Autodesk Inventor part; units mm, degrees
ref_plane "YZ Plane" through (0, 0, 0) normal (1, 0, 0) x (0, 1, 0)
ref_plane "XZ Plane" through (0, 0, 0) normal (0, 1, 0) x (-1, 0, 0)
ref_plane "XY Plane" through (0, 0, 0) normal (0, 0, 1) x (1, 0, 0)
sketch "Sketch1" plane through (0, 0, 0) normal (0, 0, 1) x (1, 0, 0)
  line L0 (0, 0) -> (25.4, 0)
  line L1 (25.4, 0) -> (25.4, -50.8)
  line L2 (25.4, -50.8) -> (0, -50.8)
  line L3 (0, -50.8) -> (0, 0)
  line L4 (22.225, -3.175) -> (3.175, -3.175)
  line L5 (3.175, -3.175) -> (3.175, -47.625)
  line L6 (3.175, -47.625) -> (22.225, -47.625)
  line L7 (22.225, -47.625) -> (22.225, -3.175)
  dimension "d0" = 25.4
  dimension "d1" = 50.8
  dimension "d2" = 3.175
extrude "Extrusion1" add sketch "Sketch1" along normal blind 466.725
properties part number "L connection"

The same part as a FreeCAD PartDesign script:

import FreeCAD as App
import Part
import Sketcher
from FreeCAD import Vector
Q = App.Units.Quantity


def add_polygon(sketch, points):
    """Adds a closed chain of lines whose ends are joined by coincident constraints."""
    first, n = sketch.GeometryCount, len(points)
    for a, b in zip(points, points[1:] + points[:1]):
        sketch.addGeometry(Part.LineSegment(App.Vector(*a, 0), App.Vector(*b, 0)), False)
    for i in range(n):
        sketch.addConstraint(Sketcher.Constraint("Coincident", first + i, 2, first + (i + 1) % n, 1))

doc = App.newDocument("Part")
body = doc.addObject("PartDesign::Body", "Body")

# Sketch on XY plane
sketch1 = doc.addObject("Sketcher::SketchObject", "Sketch")
body.addObject(sketch1)
sketch1.AttachmentSupport = (doc.XY_Plane, [""])
sketch1.MapMode = "FlatFace"
add_polygon(sketch1, [(25.4, 0), (0, 0), (0, -50.8), (25.4, -50.8)])  # lines 0-3
add_polygon(sketch1, [(3.175, -3.175), (22.225, -3.175), (22.225, -47.625), (3.175, -47.625)])  # lines 4-7
sketch1.addConstraint([
    Sketcher.Constraint("Horizontal", 0),
    Sketcher.Constraint("Vertical", 1),
    Sketcher.Constraint("Horizontal", 2),
    Sketcher.Constraint("Vertical", 3),
    Sketcher.Constraint("Horizontal", 4),
    Sketcher.Constraint("Vertical", 5),
    Sketcher.Constraint("Horizontal", 6),
    Sketcher.Constraint("Vertical", 7),
    Sketcher.Constraint("Coincident", 0, 2, -1, 1),
    Sketcher.Constraint("DistanceX", 0, 2, 0, 1, Q("1 in")),
    Sketcher.Constraint("DistanceY", 1, 2, 1, 1, Q("2 in")),
    Sketcher.Constraint("DistanceY", 4, 2, -1, 1, Q("0.125 in")),
    Sketcher.Constraint("DistanceX", -1, 1, 6, 2, Q("0.125 in")),
    Sketcher.Constraint("DistanceX", 4, 2, 3, 2, Q("0.125 in")),
    Sketcher.Constraint("DistanceY", 2, 2, 5, 2, Q("0.125 in")),
])
pad1 = doc.addObject("PartDesign::Pad", "Pad")
body.addObject(pad1)
pad1.Profile = sketch1
pad1.Length = Q("18.375 in")

doc.recompute()
